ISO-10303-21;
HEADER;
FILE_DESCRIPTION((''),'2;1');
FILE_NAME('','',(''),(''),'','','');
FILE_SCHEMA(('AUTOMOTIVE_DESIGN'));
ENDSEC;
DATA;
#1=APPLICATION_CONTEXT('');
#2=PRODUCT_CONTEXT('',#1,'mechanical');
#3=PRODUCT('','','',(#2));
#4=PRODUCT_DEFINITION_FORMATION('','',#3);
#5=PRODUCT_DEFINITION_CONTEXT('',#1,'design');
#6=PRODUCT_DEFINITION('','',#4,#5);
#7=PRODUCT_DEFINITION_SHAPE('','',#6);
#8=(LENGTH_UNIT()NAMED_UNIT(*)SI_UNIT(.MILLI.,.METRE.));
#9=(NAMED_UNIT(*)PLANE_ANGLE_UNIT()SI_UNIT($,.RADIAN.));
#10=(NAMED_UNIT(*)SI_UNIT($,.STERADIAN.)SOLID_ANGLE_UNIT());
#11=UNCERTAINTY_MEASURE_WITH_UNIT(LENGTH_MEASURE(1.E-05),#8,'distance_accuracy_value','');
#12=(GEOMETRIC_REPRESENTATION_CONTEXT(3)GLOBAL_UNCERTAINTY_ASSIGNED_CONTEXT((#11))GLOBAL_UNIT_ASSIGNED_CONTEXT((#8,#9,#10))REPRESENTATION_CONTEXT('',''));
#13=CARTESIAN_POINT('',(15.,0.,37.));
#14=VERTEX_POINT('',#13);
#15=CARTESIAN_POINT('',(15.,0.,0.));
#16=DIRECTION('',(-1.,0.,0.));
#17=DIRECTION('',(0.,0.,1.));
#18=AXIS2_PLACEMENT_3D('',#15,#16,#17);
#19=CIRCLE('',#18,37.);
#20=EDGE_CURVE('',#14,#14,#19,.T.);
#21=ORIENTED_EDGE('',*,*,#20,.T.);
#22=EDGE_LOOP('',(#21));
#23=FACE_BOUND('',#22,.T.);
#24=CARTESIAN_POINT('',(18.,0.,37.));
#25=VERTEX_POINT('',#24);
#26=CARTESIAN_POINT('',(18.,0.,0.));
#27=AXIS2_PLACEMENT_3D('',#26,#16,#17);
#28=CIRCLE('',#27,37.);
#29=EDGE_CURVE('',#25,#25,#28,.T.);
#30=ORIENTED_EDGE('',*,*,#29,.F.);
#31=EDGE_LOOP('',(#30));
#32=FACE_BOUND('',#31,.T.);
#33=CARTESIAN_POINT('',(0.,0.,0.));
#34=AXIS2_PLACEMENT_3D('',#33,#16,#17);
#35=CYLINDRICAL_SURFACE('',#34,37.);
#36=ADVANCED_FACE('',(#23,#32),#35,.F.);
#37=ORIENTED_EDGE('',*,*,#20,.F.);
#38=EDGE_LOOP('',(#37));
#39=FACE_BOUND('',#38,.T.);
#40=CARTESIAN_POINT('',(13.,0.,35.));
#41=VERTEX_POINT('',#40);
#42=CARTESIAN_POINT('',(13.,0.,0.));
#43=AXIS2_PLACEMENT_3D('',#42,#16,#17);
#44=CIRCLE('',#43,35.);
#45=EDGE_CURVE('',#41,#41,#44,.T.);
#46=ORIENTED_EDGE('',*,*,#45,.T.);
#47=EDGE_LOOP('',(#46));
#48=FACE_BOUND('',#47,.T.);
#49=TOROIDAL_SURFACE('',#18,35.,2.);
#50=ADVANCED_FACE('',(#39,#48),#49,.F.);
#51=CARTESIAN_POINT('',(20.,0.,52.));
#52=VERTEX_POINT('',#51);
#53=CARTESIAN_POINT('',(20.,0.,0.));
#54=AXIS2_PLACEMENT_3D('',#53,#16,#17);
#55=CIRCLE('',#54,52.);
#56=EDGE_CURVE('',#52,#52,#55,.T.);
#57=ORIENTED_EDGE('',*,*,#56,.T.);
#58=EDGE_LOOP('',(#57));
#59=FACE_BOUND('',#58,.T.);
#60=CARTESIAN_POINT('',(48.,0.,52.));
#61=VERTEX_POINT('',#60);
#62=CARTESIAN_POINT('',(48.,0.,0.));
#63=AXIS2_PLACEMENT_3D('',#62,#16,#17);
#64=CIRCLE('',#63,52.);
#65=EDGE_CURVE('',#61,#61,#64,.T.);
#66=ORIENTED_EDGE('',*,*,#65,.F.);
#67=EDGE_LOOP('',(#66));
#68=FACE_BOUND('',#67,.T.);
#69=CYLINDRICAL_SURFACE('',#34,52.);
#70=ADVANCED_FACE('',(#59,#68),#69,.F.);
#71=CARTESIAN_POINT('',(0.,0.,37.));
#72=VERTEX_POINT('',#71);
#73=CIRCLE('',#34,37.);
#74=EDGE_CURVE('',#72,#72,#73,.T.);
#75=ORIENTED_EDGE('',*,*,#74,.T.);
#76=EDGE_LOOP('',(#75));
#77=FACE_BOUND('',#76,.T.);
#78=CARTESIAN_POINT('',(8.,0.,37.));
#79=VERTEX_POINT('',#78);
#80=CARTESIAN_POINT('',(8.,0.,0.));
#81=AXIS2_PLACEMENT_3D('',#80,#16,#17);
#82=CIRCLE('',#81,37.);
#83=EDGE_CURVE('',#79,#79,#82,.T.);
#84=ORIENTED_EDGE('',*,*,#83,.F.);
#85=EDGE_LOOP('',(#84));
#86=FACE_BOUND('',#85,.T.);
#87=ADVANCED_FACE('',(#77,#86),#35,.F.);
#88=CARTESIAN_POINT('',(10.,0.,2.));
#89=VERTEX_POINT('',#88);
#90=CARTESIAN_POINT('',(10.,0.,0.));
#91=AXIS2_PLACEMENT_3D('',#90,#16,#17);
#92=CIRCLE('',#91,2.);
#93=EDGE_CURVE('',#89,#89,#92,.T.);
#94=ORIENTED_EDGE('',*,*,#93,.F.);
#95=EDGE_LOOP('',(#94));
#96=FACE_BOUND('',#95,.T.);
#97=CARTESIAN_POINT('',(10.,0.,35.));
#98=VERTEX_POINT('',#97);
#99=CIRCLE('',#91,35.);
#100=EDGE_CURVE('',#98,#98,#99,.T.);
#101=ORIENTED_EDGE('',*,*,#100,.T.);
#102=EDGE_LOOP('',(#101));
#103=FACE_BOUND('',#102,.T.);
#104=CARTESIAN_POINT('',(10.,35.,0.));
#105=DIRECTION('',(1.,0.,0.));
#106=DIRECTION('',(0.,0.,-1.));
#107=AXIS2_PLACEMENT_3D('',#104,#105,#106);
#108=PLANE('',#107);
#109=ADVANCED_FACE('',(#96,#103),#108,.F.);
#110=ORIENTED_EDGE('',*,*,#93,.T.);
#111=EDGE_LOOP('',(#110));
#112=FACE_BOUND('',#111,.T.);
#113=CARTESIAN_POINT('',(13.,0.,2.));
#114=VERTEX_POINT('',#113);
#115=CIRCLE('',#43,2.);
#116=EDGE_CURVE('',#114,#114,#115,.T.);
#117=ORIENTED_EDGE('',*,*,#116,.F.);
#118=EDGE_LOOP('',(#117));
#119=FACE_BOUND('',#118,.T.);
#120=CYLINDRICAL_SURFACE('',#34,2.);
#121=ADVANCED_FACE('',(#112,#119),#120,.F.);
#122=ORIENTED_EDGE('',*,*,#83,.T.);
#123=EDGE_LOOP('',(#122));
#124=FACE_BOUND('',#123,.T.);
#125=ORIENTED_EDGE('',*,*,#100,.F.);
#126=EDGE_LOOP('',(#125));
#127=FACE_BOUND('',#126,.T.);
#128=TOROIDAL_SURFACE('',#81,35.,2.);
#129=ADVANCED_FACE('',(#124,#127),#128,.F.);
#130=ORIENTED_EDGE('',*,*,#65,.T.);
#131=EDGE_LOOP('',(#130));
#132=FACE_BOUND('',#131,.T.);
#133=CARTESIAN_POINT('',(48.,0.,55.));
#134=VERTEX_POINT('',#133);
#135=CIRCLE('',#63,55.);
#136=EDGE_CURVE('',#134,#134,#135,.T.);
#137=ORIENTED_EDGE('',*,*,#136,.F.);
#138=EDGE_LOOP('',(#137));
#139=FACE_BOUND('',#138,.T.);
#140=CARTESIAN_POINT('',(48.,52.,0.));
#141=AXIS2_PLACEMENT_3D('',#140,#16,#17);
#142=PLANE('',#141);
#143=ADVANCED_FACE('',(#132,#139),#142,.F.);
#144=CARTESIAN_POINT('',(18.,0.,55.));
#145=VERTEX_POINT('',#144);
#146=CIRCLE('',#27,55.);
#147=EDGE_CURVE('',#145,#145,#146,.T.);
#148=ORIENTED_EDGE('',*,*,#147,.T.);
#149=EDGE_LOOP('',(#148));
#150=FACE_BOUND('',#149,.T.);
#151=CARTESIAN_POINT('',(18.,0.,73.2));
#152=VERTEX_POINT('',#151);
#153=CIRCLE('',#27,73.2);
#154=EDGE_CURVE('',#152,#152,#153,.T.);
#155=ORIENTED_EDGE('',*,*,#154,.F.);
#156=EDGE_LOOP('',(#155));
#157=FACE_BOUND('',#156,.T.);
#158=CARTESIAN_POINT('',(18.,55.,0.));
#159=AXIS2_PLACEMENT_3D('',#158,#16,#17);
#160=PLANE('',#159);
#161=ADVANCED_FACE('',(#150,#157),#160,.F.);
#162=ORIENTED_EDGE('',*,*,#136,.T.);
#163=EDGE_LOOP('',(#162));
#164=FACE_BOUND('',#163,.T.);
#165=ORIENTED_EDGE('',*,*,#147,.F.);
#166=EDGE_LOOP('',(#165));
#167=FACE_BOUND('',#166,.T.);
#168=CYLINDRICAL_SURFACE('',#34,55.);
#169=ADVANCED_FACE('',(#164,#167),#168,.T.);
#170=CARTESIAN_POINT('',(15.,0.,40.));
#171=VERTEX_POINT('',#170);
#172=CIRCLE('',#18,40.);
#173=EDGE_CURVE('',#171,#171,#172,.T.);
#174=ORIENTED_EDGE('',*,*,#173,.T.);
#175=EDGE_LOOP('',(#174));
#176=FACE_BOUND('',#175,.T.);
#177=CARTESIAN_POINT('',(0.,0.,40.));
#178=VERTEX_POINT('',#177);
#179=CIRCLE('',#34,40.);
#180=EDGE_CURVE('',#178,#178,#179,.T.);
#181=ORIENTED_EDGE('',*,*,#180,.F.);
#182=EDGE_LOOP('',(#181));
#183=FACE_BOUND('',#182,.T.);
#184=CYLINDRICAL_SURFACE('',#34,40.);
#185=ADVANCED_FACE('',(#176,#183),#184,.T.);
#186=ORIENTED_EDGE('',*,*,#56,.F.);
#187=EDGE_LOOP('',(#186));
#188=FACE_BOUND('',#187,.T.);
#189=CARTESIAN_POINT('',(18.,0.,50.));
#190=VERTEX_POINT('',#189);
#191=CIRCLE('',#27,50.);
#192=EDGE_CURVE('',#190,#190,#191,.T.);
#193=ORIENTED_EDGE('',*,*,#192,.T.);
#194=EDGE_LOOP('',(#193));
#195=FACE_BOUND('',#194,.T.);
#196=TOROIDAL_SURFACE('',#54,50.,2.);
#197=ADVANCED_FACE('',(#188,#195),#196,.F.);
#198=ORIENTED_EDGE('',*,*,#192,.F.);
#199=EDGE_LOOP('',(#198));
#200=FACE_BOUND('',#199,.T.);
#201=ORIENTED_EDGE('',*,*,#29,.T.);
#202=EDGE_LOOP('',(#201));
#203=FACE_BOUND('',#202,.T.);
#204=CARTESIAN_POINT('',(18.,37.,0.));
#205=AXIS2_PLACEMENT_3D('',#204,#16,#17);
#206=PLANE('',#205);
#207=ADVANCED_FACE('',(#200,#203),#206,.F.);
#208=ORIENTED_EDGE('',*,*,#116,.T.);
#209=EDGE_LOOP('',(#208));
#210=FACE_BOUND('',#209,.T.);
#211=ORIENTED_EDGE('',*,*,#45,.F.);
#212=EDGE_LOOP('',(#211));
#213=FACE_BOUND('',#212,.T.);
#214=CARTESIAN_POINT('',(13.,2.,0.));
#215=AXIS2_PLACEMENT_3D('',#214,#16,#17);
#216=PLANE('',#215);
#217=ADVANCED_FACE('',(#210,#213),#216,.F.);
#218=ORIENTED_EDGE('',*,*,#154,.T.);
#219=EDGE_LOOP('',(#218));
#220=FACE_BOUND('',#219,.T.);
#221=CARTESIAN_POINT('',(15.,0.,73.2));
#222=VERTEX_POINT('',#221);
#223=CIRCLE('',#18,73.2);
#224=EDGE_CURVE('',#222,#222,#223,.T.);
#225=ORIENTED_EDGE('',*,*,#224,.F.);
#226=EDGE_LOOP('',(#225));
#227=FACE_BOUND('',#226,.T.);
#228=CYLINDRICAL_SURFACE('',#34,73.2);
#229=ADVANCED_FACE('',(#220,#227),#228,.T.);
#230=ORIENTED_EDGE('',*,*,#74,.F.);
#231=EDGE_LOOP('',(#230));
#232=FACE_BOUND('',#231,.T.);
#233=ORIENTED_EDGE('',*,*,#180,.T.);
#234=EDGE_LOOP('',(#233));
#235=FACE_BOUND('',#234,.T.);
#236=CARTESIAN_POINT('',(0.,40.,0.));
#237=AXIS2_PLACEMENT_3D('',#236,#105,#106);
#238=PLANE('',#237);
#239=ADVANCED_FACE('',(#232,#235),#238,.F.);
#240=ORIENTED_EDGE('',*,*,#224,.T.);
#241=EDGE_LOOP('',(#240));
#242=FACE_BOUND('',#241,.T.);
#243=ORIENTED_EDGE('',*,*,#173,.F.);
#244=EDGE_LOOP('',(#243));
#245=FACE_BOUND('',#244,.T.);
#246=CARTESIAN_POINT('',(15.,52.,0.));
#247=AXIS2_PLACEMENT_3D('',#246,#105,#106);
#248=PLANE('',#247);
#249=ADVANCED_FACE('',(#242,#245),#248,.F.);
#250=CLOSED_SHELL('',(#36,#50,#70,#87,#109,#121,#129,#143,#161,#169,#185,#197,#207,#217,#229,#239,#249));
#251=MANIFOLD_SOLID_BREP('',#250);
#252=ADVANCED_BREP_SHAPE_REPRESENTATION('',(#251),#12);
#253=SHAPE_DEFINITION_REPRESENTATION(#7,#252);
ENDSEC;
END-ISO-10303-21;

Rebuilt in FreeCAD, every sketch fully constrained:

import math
import FreeCAD as App
import Part
import Sketcher

V = App.Vector
Q = App.Units.Quantity

doc = App.newDocument("Part")
body = doc.addObject("PartDesign::Body", "Body")

sketch1 = body.newObject("Sketcher::SketchObject", "Sketch")
sketch1.AttachmentSupport = (doc.getObject("XY_Plane"), [""])
sketch1.MapMode = "FlatFace"
sketch1.addGeometry([
    Part.LineSegment(V(0, 40, 0), V(0, 37, 0)),
    Part.LineSegment(V(0, 37, 0), V(8, 37, 0)),
    Part.ArcOfCircle(Part.Circle(V(8, 35, 0), V(0, 0, 1), 2), math.radians(0), math.radians(90)),
    Part.LineSegment(V(10, 35, 0), V(10, 2, 0)),
    Part.LineSegment(V(10, 2, 0), V(13, 2, 0)),
    Part.LineSegment(V(13, 2, 0), V(13, 35, 0)),
    Part.ArcOfCircle(Part.Circle(V(15, 35, 0), V(0, 0, 1), 2), math.radians(90), math.radians(180)),
    Part.LineSegment(V(15, 37, 0), V(18, 37, 0)),
    Part.LineSegment(V(18, 37, 0), V(18, 50, 0)),
    Part.ArcOfCircle(Part.Circle(V(20, 50, 0), V(0, 0, 1), 2), math.radians(90), math.radians(180)),
    Part.LineSegment(V(20, 52, 0), V(48, 52, 0)),
    Part.LineSegment(V(48, 52, 0), V(48, 55, 0)),
    Part.LineSegment(V(48, 55, 0), V(18, 55, 0)),
    Part.LineSegment(V(18, 55, 0), V(18, 73.2, 0)),
    Part.LineSegment(V(18, 73.2, 0), V(15, 73.2, 0)),
    Part.LineSegment(V(15, 73.2, 0), V(15, 40, 0)),
    Part.LineSegment(V(15, 40, 0), V(0, 40, 0)),
], False)
sketch1.addConstraint([
    Sketcher.Constraint("Coincident", 0, 2, 1, 1),
    Sketcher.Constraint("Tangent", 1, 2, 2, 2),
    Sketcher.Constraint("Tangent", 2, 1, 3, 1),
    Sketcher.Constraint("Coincident", 3, 2, 4, 1),
    Sketcher.Constraint("Coincident", 4, 2, 5, 1),
    Sketcher.Constraint("Tangent", 5, 2, 6, 2),
    Sketcher.Constraint("Tangent", 6, 1, 7, 1),
    Sketcher.Constraint("Coincident", 7, 2, 8, 1),
    Sketcher.Constraint("Tangent", 8, 2, 9, 2),
    Sketcher.Constraint("Tangent", 9, 1, 10, 1),
    Sketcher.Constraint("Coincident", 10, 2, 11, 1),
    Sketcher.Constraint("Coincident", 11, 2, 12, 1),
    Sketcher.Constraint("Coincident", 12, 2, 13, 1),
    Sketcher.Constraint("Coincident", 13, 2, 14, 1),
    Sketcher.Constraint("Coincident", 14, 2, 15, 1),
    Sketcher.Constraint("Coincident", 15, 2, 16, 1),
    Sketcher.Constraint("Coincident", 16, 2, 0, 1),
    Sketcher.Constraint("Vertical", 0),
    Sketcher.Constraint("Horizontal", 1),
    Sketcher.Constraint("Vertical", 3),
    Sketcher.Constraint("Horizontal", 4),
    Sketcher.Constraint("Vertical", 5),
    Sketcher.Constraint("Horizontal", 7),
    Sketcher.Constraint("Vertical", 8),
    Sketcher.Constraint("Horizontal", 10),
    Sketcher.Constraint("Vertical", 11),
    Sketcher.Constraint("Horizontal", 12),
    Sketcher.Constraint("Vertical", 13),
    Sketcher.Constraint("Horizontal", 14),
    Sketcher.Constraint("Vertical", 15),
    Sketcher.Constraint("Horizontal", 16),
    Sketcher.Constraint("Equal", 2, 6),
    Sketcher.Constraint("Equal", 6, 9),
    Sketcher.Constraint("PointOnObject", 0, 2, -2),
    Sketcher.Constraint("Horizontal", 2, 3, 6, 3),
    Sketcher.Constraint("Vertical", 8, 2, 12, 2),
    Sketcher.Constraint("Vertical", 6, 1, 14, 2),
    Sketcher.Constraint("Equal", 4, 7),
    Sketcher.Constraint("Equal", 14, 0),
    Sketcher.Constraint("Equal", 0, 11),
    Sketcher.Constraint("Radius", 2, Q("2 mm")),
    Sketcher.Constraint("DistanceX", 1, 1, 1, 2, Q("8 mm")),
    Sketcher.Constraint("DistanceX", 4, 1, 4, 2, Q("3 mm")),
    Sketcher.Constraint("DistanceX", 10, 1, 10, 2, Q("28 mm")),
    Sketcher.Constraint("DistanceY", 3, 2, 3, 1, Q("33 mm")),
    Sketcher.Constraint("DistanceY", 8, 1, 8, 2, Q("13 mm")),
    Sketcher.Constraint("DistanceY", 13, 1, 13, 2, Q("18.2 mm")),
    Sketcher.Constraint("DistanceY", -1, 1, 2, 3, Q("35 mm")),
])
revolution = body.newObject("PartDesign::Revolution", "Revolution")
revolution.Profile = sketch1
revolution.ReferenceAxis = (sketch1, ["H_Axis"])
revolution.Angle = 360

doc.recompute()
